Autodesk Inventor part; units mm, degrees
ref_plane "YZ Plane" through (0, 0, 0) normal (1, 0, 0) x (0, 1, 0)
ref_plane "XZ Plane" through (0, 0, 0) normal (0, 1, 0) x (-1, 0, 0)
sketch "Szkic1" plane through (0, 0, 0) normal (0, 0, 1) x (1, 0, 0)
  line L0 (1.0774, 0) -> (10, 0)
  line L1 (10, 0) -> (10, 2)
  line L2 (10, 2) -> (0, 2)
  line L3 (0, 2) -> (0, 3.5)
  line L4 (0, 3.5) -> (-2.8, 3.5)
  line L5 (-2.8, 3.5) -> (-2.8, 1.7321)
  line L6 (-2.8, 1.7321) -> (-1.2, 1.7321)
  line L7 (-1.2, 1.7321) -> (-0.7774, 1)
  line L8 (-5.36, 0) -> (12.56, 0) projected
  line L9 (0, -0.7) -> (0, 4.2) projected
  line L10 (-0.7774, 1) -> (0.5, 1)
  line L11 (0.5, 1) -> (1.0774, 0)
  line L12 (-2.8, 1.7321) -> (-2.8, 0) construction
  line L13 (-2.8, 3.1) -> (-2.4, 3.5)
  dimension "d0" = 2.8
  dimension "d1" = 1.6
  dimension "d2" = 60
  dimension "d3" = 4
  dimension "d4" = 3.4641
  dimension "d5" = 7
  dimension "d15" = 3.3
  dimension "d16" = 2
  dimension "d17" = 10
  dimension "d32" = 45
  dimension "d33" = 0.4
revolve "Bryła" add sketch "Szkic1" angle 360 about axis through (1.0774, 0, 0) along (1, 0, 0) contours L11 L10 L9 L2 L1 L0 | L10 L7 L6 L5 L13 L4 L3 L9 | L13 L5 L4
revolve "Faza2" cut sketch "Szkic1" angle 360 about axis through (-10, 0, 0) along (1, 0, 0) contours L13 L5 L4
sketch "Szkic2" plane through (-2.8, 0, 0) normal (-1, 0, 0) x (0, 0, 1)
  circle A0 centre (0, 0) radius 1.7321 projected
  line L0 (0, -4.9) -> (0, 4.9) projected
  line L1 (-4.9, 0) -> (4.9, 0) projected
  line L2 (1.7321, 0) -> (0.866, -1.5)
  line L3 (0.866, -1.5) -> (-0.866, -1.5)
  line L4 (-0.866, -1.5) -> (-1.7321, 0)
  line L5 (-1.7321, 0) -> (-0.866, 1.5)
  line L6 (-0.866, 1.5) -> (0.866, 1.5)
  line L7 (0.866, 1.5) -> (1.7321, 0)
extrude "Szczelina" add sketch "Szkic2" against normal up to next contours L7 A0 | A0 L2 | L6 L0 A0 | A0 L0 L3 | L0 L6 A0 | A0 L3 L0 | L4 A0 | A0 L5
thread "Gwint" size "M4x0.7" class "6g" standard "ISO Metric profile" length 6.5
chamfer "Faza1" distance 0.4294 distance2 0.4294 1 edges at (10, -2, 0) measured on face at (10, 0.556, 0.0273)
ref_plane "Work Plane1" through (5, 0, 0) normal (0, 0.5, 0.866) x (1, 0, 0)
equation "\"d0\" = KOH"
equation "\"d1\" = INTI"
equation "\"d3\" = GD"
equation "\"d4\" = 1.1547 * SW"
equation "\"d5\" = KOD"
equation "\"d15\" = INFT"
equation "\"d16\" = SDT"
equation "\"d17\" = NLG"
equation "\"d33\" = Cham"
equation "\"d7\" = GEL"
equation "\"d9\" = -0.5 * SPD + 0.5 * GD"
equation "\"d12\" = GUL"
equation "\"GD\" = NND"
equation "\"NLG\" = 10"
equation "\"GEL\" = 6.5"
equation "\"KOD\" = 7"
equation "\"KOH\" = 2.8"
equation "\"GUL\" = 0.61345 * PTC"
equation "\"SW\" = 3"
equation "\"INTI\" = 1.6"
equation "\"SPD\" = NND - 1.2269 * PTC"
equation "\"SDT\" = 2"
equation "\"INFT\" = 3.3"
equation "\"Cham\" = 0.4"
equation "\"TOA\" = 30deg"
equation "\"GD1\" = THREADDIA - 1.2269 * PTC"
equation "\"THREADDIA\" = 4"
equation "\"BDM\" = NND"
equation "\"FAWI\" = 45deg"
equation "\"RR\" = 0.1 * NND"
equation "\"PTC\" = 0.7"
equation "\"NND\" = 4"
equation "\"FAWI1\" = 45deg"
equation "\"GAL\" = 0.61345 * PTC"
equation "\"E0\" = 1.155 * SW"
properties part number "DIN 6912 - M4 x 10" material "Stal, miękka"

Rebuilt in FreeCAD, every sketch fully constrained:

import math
import FreeCAD as App
import Part
import Sketcher
Q = App.Units.Quantity


def edges_at(feature, points):
    """Names of the edges that pass closest to the given points."""
    edges = feature.Shape.Edges
    near = lambda p: min(range(len(edges)), key=lambda i: edges[i].distToShape(Part.Vertex(*p))[0])
    return sorted({f"Edge{near(p) + 1}" for p in points})

doc = App.newDocument("Part")
params = doc.addObject("Spreadsheet::Sheet", "Params")
for row, (alias, value) in enumerate([
    ("sketch1_width", "10 mm"),
    ("sketch1_height", "2 mm"),
    ("sketch1_width2", "2.8 mm"),
    ("sketch1_width3", "1.6 mm"),
    ("sketch1_height2", "1.5 mm"),
    ("revolution_angle", "360 deg"),
    ("sketch2_width", "0.4 mm"),
    ("groove_angle", "360 deg"),
    ("pad1_length", "1.734 mm"),
    ("chamfer_size", "0.4294 mm"),
    ("chamfer_size2", "0.4294 mm"),
], start=1):
    params.set(f"A{row}", alias)
    params.set(f"B{row}", "=" + value)
    params.setAlias(f"B{row}", alias)

body = doc.addObject("PartDesign::Body", "Body")

sketch1 = doc.addObject("Sketcher::SketchObject", "Sketch")
body.addObject(sketch1)
sketch1.AttachmentSupport = (doc.XY_Plane, [""])
sketch1.MapMode = "FlatFace"
sketch1.addGeometry(Part.LineSegment(App.Vector(0.5, 1, 0), App.Vector(1.1, 0, 0)), False)
sketch1.addGeometry(Part.LineSegment(App.Vector(1.1, 0, 0), App.Vector(10, 0, 0)), False)
sketch1.addGeometry(Part.LineSegment(App.Vector(10, 0, 0), App.Vector(10, 2, 0)), False)
sketch1.addGeometry(Part.LineSegment(App.Vector(10, 2, 0), App.Vector(0, 2, 0)), False)
sketch1.addGeometry(Part.LineSegment(App.Vector(0, 2, 0), App.Vector(0, 3.5, 0)), False)
sketch1.addGeometry(Part.LineSegment(App.Vector(0, 3.5, 0), App.Vector(-2.8, 3.5, 0)), False)
sketch1.addGeometry(Part.LineSegment(App.Vector(-2.8, 3.5, 0), App.Vector(-2.8, 1.7, 0)), False)
sketch1.addGeometry(Part.LineSegment(App.Vector(-2.8, 1.7, 0), App.Vector(-1.2, 1.7, 0)), False)
sketch1.addGeometry(Part.LineSegment(App.Vector(-1.2, 1.7, 0), App.Vector(-0.8, 1, 0)), False)
sketch1.addGeometry(Part.LineSegment(App.Vector(-0.8, 1, 0), App.Vector(0.5, 1, 0)), False)
sketch1.addConstraint(Sketcher.Constraint("Coincident", 0, 2, 1, 1))
sketch1.addConstraint(Sketcher.Constraint("Coincident", 1, 2, 2, 1))
sketch1.addConstraint(Sketcher.Constraint("Coincident", 2, 2, 3, 1))
sketch1.addConstraint(Sketcher.Constraint("Coincident", 3, 2, 4, 1))
sketch1.addConstraint(Sketcher.Constraint("Coincident", 4, 2, 5, 1))
sketch1.addConstraint(Sketcher.Constraint("Coincident", 5, 2, 6, 1))
sketch1.addConstraint(Sketcher.Constraint("Coincident", 6, 2, 7, 1))
sketch1.addConstraint(Sketcher.Constraint("Coincident", 7, 2, 8, 1))
sketch1.addConstraint(Sketcher.Constraint("Coincident", 8, 2, 9, 1))
sketch1.addConstraint(Sketcher.Constraint("Coincident", 9, 2, 0, 1))
sketch1.addConstraint(Sketcher.Constraint("Horizontal", 1))
sketch1.addConstraint(Sketcher.Constraint("Vertical", 2))
sketch1.addConstraint(Sketcher.Constraint("Horizontal", 3))
sketch1.addConstraint(Sketcher.Constraint("Vertical", 4))
sketch1.addConstraint(Sketcher.Constraint("Horizontal", 5))
sketch1.addConstraint(Sketcher.Constraint("Vertical", 6))
sketch1.addConstraint(Sketcher.Constraint("Horizontal", 7))
sketch1.addConstraint(Sketcher.Constraint("Horizontal", 9))
sketch1.addConstraint(Sketcher.Constraint("PointOnObject", 0, 2, -1))
sketch1.addConstraint(Sketcher.Constraint("PointOnObject", 3, 2, -2))
sketch1.addConstraint(Sketcher.Constraint("Parallel", 0, 8))
sketch1.addConstraint(Sketcher.Constraint("DistanceX", 3, 2, 3, 1, Q("10 mm")))
sketch1.addConstraint(Sketcher.Constraint("DistanceY", 2, 1, 2, 2, Q("2 mm")))
sketch1.addConstraint(Sketcher.Constraint("DistanceX", 5, 2, 5, 1, Q("2.8 mm")))
sketch1.addConstraint(Sketcher.Constraint("DistanceX", 7, 1, 7, 2, Q("1.6 mm")))
sketch1.addConstraint(Sketcher.Constraint("DistanceY", 4, 1, 4, 2, Q("1.5 mm")))
sketch1.addConstraint(Sketcher.Constraint("DistanceY", -1, 1, 8, 2, Q("1 mm")))
sketch1.addConstraint(Sketcher.Constraint("DistanceX", -1, 1, 9, 2, Q("0.5 mm")))
sketch1.addConstraint(Sketcher.Constraint("DistanceY", 6, 2, 6, 1, Q("1.768 mm")))
sketch1.addConstraint(Sketcher.Constraint("DistanceX", 1, 1, 1, 2, Q("8.9226 mm")))
sketch1.setExpression("Constraints[21]", "Params.sketch1_width")
sketch1.setExpression("Constraints[22]", "Params.sketch1_height")
sketch1.setExpression("Constraints[23]", "Params.sketch1_width2")
sketch1.setExpression("Constraints[24]", "Params.sketch1_width3")
sketch1.setExpression("Constraints[25]", "Params.sketch1_height2")
revolution = doc.addObject("PartDesign::Revolution", "Revolution")
body.addObject(revolution)
revolution.Profile = sketch1
revolution.ReferenceAxis = (sketch1, ["H_Axis"])
revolution.setExpression("Angle", "Params.revolution_angle")

sketch2 = doc.addObject("Sketcher::SketchObject", "Sketch001")
body.addObject(sketch2)
sketch2.AttachmentSupport = (doc.XY_Plane, [""])
sketch2.MapMode = "FlatFace"
sketch2.addGeometry(Part.LineSegment(App.Vector(-2.8, 3.1, 0), App.Vector(-2.4, 3.5, 0)), False)
sketch2.addGeometry(Part.LineSegment(App.Vector(-2.4, 3.5, 0), App.Vector(-2.8, 3.5, 0)), False)
sketch2.addGeometry(Part.LineSegment(App.Vector(-2.8, 3.5, 0), App.Vector(-2.8, 3.1, 0)), False)
sketch2.addConstraint(Sketcher.Constraint("Coincident", 0, 2, 1, 1))
sketch2.addConstraint(Sketcher.Constraint("Coincident", 1, 2, 2, 1))
sketch2.addConstraint(Sketcher.Constraint("Coincident", 2, 2, 0, 1))
sketch2.addConstraint(Sketcher.Constraint("Horizontal", 1))
sketch2.addConstraint(Sketcher.Constraint("Vertical", 2))
sketch2.addConstraint(Sketcher.Constraint("Equal", 1, 2))
sketch2.addConstraint(Sketcher.Constraint("DistanceX", 1, 2, 1, 1, Q("0.4 mm")))
sketch2.addConstraint(Sketcher.Constraint("DistanceX", 1, 2, -1, 1, Q("2.8 mm")))
sketch2.addConstraint(Sketcher.Constraint("DistanceY", -1, 1, 0, 2, Q("3.5 mm")))
sketch2.setExpression("Constraints[6]", "Params.sketch2_width")
groove = doc.addObject("PartDesign::Groove", "Groove")
body.addObject(groove)
groove.Profile = sketch2
groove.ReferenceAxis = (sketch2, ["H_Axis"])
groove.setExpression("Angle", "Params.groove_angle")

sketch3 = doc.addObject("Sketcher::SketchObject", "Sketch002")
body.addObject(sketch3)
sketch3.AttachmentSupport = (doc.YZ_Plane, [""])
sketch3.MapMode = "FlatFace"
sketch3.AttachmentOffset = App.Placement(App.Vector(0, 0, -2.8), App.Rotation())
sketch3.addGeometry(Part.LineSegment(App.Vector(1.5, 0.9, 0), App.Vector(0, 1.7, 0)), False)
sketch3.addGeometry(Part.ArcOfCircle(Part.Circle(App.Vector(0, 0, 0), App.Vector(0, 0, 1), 1.7), math.radians(30), math.radians(90)), False)
sketch3.addGeometry(Part.ArcOfCircle(Part.Circle(App.Vector(0, 0, 0), App.Vector(0, 0, 1), 1.7), math.radians(90), math.radians(150)), False)
sketch3.addGeometry(Part.LineSegment(App.Vector(0, 1.7, 0), App.Vector(-1.5, 0.9, 0)), False)
sketch3.addGeometry(Part.ArcOfCircle(Part.Circle(App.Vector(0, 0, 0), App.Vector(0, 0, 1), 1.7), math.radians(-30), math.radians(30)), False)
sketch3.addGeometry(Part.LineSegment(App.Vector(1.5, 0.9, 0), App.Vector(1.5, -0.9, 0)), False)
sketch3.addGeometry(Part.LineSegment(App.Vector(-1.5, 0.9, 0), App.Vector(-1.5, -0.9, 0)), False)
sketch3.addGeometry(Part.ArcOfCircle(Part.Circle(App.Vector(0, 0, 0), App.Vector(0, 0, 1), 1.7), math.radians(150), math.radians(210)), False)
sketch3.addGeometry(Part.LineSegment(App.Vector(-1.5, -0.9, 0), App.Vector(0, -1.7, 0)), False)
sketch3.addGeometry(Part.ArcOfCircle(Part.Circle(App.Vector(0, 0, 0), App.Vector(0, 0, 1), 1.7), math.radians(-150), math.radians(-90)), False)
sketch3.addGeometry(Part.ArcOfCircle(Part.Circle(App.Vector(0, 0, 0), App.Vector(0, 0, 1), 1.7), math.radians(-90), math.radians(-30)), False)
sketch3.addGeometry(Part.LineSegment(App.Vector(0, -1.7, 0), App.Vector(1.5, -0.9, 0)), False)
sketch3.addConstraint(Sketcher.Constraint("Coincident", 0, 1, 1, 1))
sketch3.addConstraint(Sketcher.Constraint("Coincident", 1, 2, 0, 2))
sketch3.addConstraint(Sketcher.Constraint("Coincident", 2, 1, 3, 1))
sketch3.addConstraint(Sketcher.Constraint("Coincident", 3, 2, 2, 2))
sketch3.addConstraint(Sketcher.Constraint("Coincident", 4, 1, 5, 2))
sketch3.addConstraint(Sketcher.Constraint("Coincident", 5, 1, 4, 2))
sketch3.addConstraint(Sketcher.Constraint("Coincident", 6, 1, 7, 1))
sketch3.addConstraint(Sketcher.Constraint("Coincident", 7, 2, 6, 2))
sketch3.addConstraint(Sketcher.Constraint("Coincident", 8, 1, 9, 1))
sketch3.addConstraint(Sketcher.Constraint("Coincident", 9, 2, 8, 2))
sketch3.addConstraint(Sketcher.Constraint("Coincident", 10, 1, 11, 1))
sketch3.addConstraint(Sketcher.Constraint("Coincident", 11, 2, 10, 2))
sketch3.addConstraint(Sketcher.Constraint("Vertical", 5))
sketch3.addConstraint(Sketcher.Constraint("Vertical", 6))
sketch3.addConstraint(Sketcher.Constraint("Coincident", 1, 3, -1, 1))
sketch3.addConstraint(Sketcher.Constraint("Coincident", 2, 3, -1, 1))
sketch3.addConstraint(Sketcher.Constraint("Coincident", 4, 3, -1, 1))
sketch3.addConstraint(Sketcher.Constraint("Coincident", 7, 3, -1, 1))
sketch3.addConstraint(Sketcher.Constraint("Coincident", 9, 3, -1, 1))
sketch3.addConstraint(Sketcher.Constraint("Coincident", 10, 3, -1, 1))
sketch3.addConstraint(Sketcher.Constraint("Coincident", 2, 1, 1, 2))
sketch3.addConstraint(Sketcher.Constraint("Coincident", 5, 1, 0, 1))
sketch3.addConstraint(Sketcher.Constraint("Coincident", 6, 1, 3, 2))
sketch3.addConstraint(Sketcher.Constraint("Coincident", 8, 1, 7, 2))
sketch3.addConstraint(Sketcher.Constraint("Coincident", 10, 1, 9, 2))
sketch3.addConstraint(Sketcher.Constraint("PointOnObject", 1, 2, -2))
sketch3.addConstraint(Sketcher.Constraint("PointOnObject", 9, 2, -2))
sketch3.addConstraint(Sketcher.Constraint("Parallel", 0, 8))
sketch3.addConstraint(Sketcher.Constraint("Parallel", 3, 11))
sketch3.addConstraint(Sketcher.Constraint("Radius", 1, Q("1.732 mm")))
sketch3.addConstraint(Sketcher.Constraint("DistanceX", -1, 1, 0, 1, Q("1.5 mm")))
pad1 = doc.addObject("PartDesign::Pad", "Pad")
body.addObject(pad1)
pad1.Profile = sketch3
pad1.setExpression("Length", "Params.pad1_length")
doc.recompute()

chamfer = doc.addObject("PartDesign::Chamfer", "Chamfer")
body.addObject(chamfer)
chamfer.Base = (pad1, edges_at(pad1, [(10, -2, 0)]))
chamfer.ChamferType = "Two distances"
chamfer.setExpression("Size", "Params.chamfer_size")
chamfer.setExpression("Size2", "Params.chamfer_size2")

doc.recompute()
